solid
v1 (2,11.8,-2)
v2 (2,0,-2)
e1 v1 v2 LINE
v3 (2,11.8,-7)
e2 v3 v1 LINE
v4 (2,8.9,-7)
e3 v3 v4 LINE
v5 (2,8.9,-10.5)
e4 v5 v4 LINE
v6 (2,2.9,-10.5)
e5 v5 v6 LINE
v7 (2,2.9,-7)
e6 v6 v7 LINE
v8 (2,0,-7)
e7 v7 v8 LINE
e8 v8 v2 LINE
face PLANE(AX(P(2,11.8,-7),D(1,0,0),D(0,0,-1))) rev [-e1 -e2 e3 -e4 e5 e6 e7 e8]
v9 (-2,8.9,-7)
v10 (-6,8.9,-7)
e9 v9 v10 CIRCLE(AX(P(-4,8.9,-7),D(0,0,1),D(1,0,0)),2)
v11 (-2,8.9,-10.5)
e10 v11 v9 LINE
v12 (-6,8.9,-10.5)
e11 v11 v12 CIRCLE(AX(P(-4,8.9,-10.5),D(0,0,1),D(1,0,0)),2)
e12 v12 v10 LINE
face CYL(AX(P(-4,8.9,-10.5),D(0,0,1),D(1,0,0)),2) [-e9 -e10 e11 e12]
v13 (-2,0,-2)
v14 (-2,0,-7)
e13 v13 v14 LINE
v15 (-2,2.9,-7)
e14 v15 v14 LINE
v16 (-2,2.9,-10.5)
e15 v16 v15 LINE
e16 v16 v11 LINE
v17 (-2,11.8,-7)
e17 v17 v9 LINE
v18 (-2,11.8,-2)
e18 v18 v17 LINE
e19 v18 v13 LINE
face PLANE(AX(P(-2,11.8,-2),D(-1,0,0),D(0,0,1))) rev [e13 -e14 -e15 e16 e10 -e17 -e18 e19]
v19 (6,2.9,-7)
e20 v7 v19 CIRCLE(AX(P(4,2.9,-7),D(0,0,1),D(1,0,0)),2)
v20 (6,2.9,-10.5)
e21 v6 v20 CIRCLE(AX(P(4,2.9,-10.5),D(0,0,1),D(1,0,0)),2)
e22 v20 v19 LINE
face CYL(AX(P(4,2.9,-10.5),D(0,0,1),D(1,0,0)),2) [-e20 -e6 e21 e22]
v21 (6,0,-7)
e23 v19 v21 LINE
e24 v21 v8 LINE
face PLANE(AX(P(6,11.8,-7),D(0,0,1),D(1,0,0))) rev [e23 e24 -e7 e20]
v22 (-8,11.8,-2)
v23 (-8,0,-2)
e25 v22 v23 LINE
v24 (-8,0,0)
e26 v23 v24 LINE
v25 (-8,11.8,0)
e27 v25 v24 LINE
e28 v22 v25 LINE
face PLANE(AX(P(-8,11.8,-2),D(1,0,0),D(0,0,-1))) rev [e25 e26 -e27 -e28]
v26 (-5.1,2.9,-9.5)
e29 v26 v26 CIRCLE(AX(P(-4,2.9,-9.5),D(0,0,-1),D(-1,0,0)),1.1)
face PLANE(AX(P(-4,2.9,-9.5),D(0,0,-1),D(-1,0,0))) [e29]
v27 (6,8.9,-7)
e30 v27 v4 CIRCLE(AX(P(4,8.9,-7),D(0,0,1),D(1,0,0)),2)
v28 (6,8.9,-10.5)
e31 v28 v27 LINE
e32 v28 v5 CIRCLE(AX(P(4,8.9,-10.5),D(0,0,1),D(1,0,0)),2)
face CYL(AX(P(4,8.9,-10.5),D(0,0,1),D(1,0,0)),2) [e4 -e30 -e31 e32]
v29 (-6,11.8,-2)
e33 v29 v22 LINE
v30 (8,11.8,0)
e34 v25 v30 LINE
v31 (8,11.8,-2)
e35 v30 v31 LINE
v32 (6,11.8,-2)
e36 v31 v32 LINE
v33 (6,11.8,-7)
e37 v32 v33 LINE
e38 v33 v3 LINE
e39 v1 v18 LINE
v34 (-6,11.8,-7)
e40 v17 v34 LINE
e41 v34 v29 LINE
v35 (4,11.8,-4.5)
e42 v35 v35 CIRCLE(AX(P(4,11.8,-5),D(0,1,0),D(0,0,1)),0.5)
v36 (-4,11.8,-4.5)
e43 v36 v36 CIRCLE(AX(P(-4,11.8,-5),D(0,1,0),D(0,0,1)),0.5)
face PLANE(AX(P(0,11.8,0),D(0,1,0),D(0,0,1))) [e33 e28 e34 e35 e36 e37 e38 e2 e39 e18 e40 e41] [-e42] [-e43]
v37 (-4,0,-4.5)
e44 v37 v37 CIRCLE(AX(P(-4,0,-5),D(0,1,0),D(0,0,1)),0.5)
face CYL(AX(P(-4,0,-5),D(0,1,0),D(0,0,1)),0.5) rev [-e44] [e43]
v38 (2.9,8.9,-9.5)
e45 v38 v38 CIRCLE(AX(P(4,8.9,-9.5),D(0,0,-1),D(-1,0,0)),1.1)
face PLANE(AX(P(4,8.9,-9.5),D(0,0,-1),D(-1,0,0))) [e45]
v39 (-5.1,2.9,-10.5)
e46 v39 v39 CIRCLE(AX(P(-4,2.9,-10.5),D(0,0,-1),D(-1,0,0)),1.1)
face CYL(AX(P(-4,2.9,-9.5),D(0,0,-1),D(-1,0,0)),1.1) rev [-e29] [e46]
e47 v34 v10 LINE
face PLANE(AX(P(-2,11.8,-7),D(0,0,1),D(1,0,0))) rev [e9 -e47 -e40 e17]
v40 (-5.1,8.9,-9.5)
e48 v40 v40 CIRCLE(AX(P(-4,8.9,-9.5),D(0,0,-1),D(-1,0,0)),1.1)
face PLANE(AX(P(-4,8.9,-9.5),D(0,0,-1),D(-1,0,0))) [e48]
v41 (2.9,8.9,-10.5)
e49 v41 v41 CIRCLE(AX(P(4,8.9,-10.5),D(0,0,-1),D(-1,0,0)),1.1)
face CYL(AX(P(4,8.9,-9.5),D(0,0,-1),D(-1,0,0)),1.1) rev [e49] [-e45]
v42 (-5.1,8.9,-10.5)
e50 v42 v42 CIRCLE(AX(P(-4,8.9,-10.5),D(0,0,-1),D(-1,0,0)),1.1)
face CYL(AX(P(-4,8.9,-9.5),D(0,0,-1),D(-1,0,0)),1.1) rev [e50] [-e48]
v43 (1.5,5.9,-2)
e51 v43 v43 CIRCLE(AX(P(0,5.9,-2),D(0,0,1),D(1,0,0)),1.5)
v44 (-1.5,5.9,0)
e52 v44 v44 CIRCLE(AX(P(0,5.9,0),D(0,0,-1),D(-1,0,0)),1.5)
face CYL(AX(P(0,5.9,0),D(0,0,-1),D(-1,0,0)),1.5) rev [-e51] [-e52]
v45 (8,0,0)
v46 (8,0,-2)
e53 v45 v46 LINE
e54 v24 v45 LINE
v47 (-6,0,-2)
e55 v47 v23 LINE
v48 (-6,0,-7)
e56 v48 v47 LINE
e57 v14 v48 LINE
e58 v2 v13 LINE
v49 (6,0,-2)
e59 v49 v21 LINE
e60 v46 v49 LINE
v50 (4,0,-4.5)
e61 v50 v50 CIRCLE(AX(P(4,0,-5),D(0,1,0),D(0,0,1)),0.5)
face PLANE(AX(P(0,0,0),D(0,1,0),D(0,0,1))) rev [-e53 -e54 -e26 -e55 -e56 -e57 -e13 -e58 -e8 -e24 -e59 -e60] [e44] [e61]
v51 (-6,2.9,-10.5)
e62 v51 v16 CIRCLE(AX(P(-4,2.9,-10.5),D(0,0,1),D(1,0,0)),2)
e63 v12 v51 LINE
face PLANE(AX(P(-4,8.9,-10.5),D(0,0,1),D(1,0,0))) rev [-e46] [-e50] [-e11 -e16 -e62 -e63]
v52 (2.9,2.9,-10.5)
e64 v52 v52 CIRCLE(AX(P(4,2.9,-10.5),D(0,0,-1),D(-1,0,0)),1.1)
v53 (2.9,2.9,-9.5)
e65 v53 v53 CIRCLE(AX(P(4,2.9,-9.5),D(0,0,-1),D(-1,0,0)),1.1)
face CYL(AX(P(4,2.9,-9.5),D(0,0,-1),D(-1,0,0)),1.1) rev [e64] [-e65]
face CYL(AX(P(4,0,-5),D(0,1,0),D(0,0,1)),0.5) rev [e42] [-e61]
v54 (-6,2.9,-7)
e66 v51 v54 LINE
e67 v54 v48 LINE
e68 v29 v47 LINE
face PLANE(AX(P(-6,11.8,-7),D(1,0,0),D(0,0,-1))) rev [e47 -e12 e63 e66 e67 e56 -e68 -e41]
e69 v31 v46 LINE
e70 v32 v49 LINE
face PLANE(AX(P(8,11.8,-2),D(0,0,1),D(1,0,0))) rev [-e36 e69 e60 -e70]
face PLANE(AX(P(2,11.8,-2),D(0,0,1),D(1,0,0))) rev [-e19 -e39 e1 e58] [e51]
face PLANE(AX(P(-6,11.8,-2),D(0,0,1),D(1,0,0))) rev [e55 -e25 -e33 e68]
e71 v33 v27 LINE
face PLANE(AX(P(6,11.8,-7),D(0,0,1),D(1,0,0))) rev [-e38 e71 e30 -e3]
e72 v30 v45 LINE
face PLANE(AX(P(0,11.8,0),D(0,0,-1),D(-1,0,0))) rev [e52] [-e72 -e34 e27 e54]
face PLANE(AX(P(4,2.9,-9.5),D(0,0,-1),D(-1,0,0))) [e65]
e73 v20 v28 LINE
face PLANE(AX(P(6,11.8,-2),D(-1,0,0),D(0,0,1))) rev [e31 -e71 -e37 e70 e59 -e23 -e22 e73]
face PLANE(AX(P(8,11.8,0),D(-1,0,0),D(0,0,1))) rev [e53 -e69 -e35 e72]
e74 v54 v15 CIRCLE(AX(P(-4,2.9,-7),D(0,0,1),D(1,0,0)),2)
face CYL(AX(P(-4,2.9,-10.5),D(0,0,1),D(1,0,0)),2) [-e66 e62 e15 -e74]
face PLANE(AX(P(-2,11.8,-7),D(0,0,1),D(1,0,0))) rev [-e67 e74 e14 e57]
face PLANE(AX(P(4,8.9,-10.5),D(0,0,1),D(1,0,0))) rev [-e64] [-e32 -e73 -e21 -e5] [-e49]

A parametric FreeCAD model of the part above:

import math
import FreeCAD as App
import Part
import Sketcher

doc = App.newDocument("Part")
body = doc.addObject("PartDesign::Body", "Body")

sketch1 = doc.addObject("Sketcher::SketchObject", "Sketch")
body.addObject(sketch1)
sketch1.AttachmentSupport = (doc.XZ_Plane, [""])
sketch1.MapMode = "FlatFace"
sketch1.addGeometry([
    Part.LineSegment(App.Vector(8, 0, 0), App.Vector(8, -2, 0)),
    Part.LineSegment(App.Vector(8, -2, 0), App.Vector(6, -2, 0)),
    Part.LineSegment(App.Vector(6, -2, 0), App.Vector(6, -7, 0)),
    Part.LineSegment(App.Vector(6, -7, 0), App.Vector(2, -7, 0)),
    Part.LineSegment(App.Vector(2, -7, 0), App.Vector(2, -2, 0)),
    Part.LineSegment(App.Vector(2, -2, 0), App.Vector(-2, -2, 0)),
    Part.LineSegment(App.Vector(-2, -2, 0), App.Vector(-2, -7, 0)),
    Part.LineSegment(App.Vector(-2, -7, 0), App.Vector(-6, -7, 0)),
    Part.LineSegment(App.Vector(-6, -7, 0), App.Vector(-6, -2, 0)),
    Part.LineSegment(App.Vector(-6, -2, 0), App.Vector(-8, -2, 0)),
    Part.LineSegment(App.Vector(-8, -2, 0), App.Vector(-8, 0, 0)),
    Part.LineSegment(App.Vector(-8, 0, 0), App.Vector(8, 0, 0)),
], False)
sketch1.addConstraint([
    Sketcher.Constraint("Coincident", 0, 2, 1, 1),
    Sketcher.Constraint("Coincident", 1, 2, 2, 1),
    Sketcher.Constraint("Coincident", 2, 2, 3, 1),
    Sketcher.Constraint("Coincident", 3, 2, 4, 1),
    Sketcher.Constraint("Coincident", 4, 2, 5, 1),
    Sketcher.Constraint("Coincident", 5, 2, 6, 1),
    Sketcher.Constraint("Coincident", 6, 2, 7, 1),
    Sketcher.Constraint("Coincident", 7, 2, 8, 1),
    Sketcher.Constraint("Coincident", 8, 2, 9, 1),
    Sketcher.Constraint("Coincident", 9, 2, 10, 1),
    Sketcher.Constraint("Coincident", 10, 2, 11, 1),
    Sketcher.Constraint("Coincident", 11, 2, 0, 1),
    Sketcher.Constraint("Vertical", 0),
    Sketcher.Constraint("Horizontal", 1),
    Sketcher.Constraint("Vertical", 2),
    Sketcher.Constraint("Horizontal", 3),
    Sketcher.Constraint("Vertical", 4),
    Sketcher.Constraint("Horizontal", 5),
    Sketcher.Constraint("Vertical", 6),
    Sketcher.Constraint("Horizontal", 7),
    Sketcher.Constraint("Vertical", 8),
    Sketcher.Constraint("Horizontal", 9),
    Sketcher.Constraint("Vertical", 10),
    Sketcher.Constraint("Horizontal", 11),
    Sketcher.Constraint("Symmetric", 10, 2, 11, 2, -1, 1),
    Sketcher.Constraint("Symmetric", 3, 2, 6, 2, -2),
    Sketcher.Constraint("Symmetric", 1, 2, 8, 2, -2),
    Sketcher.Constraint("Horizontal", 1, 2, 4, 2),
    Sketcher.Constraint("Equal", 3, 5),
    Sketcher.Constraint("Equal", 9, 0),
    Sketcher.Constraint("DistanceX", 1, 2, 1, 1, 2.0),
    Sketcher.Constraint("DistanceX", 3, 2, 3, 1, 4.0),
    Sketcher.Constraint("DistanceY", 2, 2, 2, 1, 5.0),
])
pad1 = doc.addObject("PartDesign::Pad", "Pad")
body.addObject(pad1)
pad1.Profile = sketch1
pad1.Length = 11.8
pad1.Reversed = True

sketch2 = doc.addObject("Sketcher::SketchObject", "Sketch001")
body.addObject(sketch2)
sketch2.AttachmentSupport = (doc.XY_Plane, [""])
sketch2.MapMode = "FlatFace"
sketch2.addGeometry([
    Part.LineSegment(App.Vector(-2, 2.9, 0), App.Vector(-2, 8.9, 0)),
    Part.ArcOfCircle(Part.Circle(App.Vector(-4, 8.9, 0), App.Vector(0, 0, 1), 2), math.radians(0), math.radians(180)),
    Part.LineSegment(App.Vector(-6, 8.9, 0), App.Vector(-6, 2.9, 0)),
    Part.ArcOfCircle(Part.Circle(App.Vector(-4, 2.9, 0), App.Vector(0, 0, 1), 2), math.radians(180), math.radians(360)),
    Part.LineSegment(App.Vector(6, 2.9, 0), App.Vector(6, 8.9, 0)),
    Part.ArcOfCircle(Part.Circle(App.Vector(4, 8.9, 0), App.Vector(0, 0, 1), 2), math.radians(0), math.radians(180)),
    Part.LineSegment(App.Vector(2, 8.9, 0), App.Vector(2, 2.9, 0)),
    Part.ArcOfCircle(Part.Circle(App.Vector(4, 2.9, 0), App.Vector(0, 0, 1), 2), math.radians(180), math.radians(360)),
], False)
sketch2.addConstraint([
    Sketcher.Constraint("Tangent", 0, 2, 1, 1),
    Sketcher.Constraint("Tangent", 1, 2, 2, 1),
    Sketcher.Constraint("Tangent", 2, 2, 3, 1),
    Sketcher.Constraint("Tangent", 3, 2, 0, 1),
    Sketcher.Constraint("Tangent", 4, 2, 5, 1),
    Sketcher.Constraint("Tangent", 5, 2, 6, 1),
    Sketcher.Constraint("Tangent", 6, 2, 7, 1),
    Sketcher.Constraint("Tangent", 7, 2, 4, 1),
    Sketcher.Constraint("Vertical", 0),
    Sketcher.Constraint("Vertical", 2),
    Sketcher.Constraint("Vertical", 4),
    Sketcher.Constraint("Vertical", 6),
    Sketcher.Constraint("Equal", 3, 5),
    Sketcher.Constraint("Symmetric", 1, 3, 5, 3, -2),
    Sketcher.Constraint("Horizontal", 3, 3, 7, 3),
    Sketcher.Constraint("Radius", 1, 2.0),
    Sketcher.Constraint("DistanceY", 0, 1, 0, 2, 6.0),
    Sketcher.Constraint("DistanceX", 1, 3, -1, 1, 4.0),
    Sketcher.Constraint("DistanceY", -1, 1, 1, 3, 8.9),
])
pad2 = doc.addObject("PartDesign::Pad", "Pad001")
body.addObject(pad2)
pad2.Profile = sketch2
pad2.Length = 10.5
pad2.Reversed = True

sketch3 = doc.addObject("Sketcher::SketchObject", "Sketch002")
body.addObject(sketch3)
sketch3.AttachmentSupport = (doc.XZ_Plane, [""])
sketch3.MapMode = "FlatFace"
sketch3.AttachmentOffset = App.Placement(App.Vector(0, 0, -11.8), App.Rotation())
sketch3.addGeometry([
    Part.Circle(App.Vector(-4, -5, 0), App.Vector(0, 0, 1), 0.5),
    Part.Circle(App.Vector(4, -5, 0), App.Vector(0, 0, 1), 0.5),
], False)
sketch3.addConstraint([
    Sketcher.Constraint("Equal", 0, 1),
    Sketcher.Constraint("Symmetric", 0, 3, 1, 3, -2),
    Sketcher.Constraint("Diameter", 0, 1.0),
    Sketcher.Constraint("DistanceX", 0, 3, -1, 1, 4.0),
    Sketcher.Constraint("DistanceY", 0, 3, -1, 1, 5.0),
])
pocket1 = doc.addObject("PartDesign::Pocket", "Pocket")
body.addObject(pocket1)
pocket1.Profile = sketch3
pocket1.Type = "ThroughAll"
pocket1.Midplane = True

sketch4 = doc.addObject("Sketcher::SketchObject", "Sketch003")
body.addObject(sketch4)
sketch4.AttachmentSupport = (doc.XY_Plane, [""])
sketch4.MapMode = "FlatFace"
sketch4.AttachmentOffset = App.Placement(App.Vector(0, 0, -10.5), App.Rotation())
sketch4.addGeometry([
    Part.Circle(App.Vector(-4, 8.9, 0), App.Vector(0, 0, 1), 1.1),
    Part.Circle(App.Vector(-4, 2.9, 0), App.Vector(0, 0, 1), 1.1),
    Part.Circle(App.Vector(4, 2.9, 0), App.Vector(0, 0, 1), 1.1),
    Part.Circle(App.Vector(4, 8.9, 0), App.Vector(0, 0, 1), 1.1),
], False)
sketch4.addConstraint([
    Sketcher.Constraint("Equal", 0, 1),
    Sketcher.Constraint("Equal", 1, 2),
    Sketcher.Constraint("Equal", 2, 3),
    Sketcher.Constraint("Symmetric", 1, 3, 2, 3, -2),
    Sketcher.Constraint("Symmetric", 0, 3, 3, 3, -2),
    Sketcher.Constraint("Vertical", 0, 3, 1, 3),
    Sketcher.Constraint("Diameter", 0, 2.2),
    Sketcher.Constraint("DistanceX", 0, 3, -1, 1, 4.0),
    Sketcher.Constraint("DistanceY", 1, 3, 0, 3, 6.0),
    Sketcher.Constraint("DistanceY", -1, 1, 0, 3, 8.9),
])
pocket2 = doc.addObject("PartDesign::Pocket", "Pocket001")
body.addObject(pocket2)
pocket2.Profile = sketch4
pocket2.Length = 1
pocket2.Reversed = True

sketch5 = doc.addObject("Sketcher::SketchObject", "Sketch004")
body.addObject(sketch5)
sketch5.AttachmentSupport = (doc.XY_Plane, [""])
sketch5.MapMode = "FlatFace"
sketch5.AttachmentOffset = App.Placement(App.Vector(0, 0, -2), App.Rotation())
sketch5.addGeometry(Part.Circle(App.Vector(0, 5.9, 0), App.Vector(0, 0, 1), 1.5), False)
sketch5.addConstraint([
    Sketcher.Constraint("PointOnObject", 0, 3, -2),
    Sketcher.Constraint("Diameter", 0, 3.0),
    Sketcher.Constraint("DistanceY", -1, 1, 0, 3, 5.9),
])
pocket3 = doc.addObject("PartDesign::Pocket", "Pocket002")
body.addObject(pocket3)
pocket3.Profile = sketch5
pocket3.Type = "ThroughAll"
pocket3.Midplane = True

doc.recompute()
